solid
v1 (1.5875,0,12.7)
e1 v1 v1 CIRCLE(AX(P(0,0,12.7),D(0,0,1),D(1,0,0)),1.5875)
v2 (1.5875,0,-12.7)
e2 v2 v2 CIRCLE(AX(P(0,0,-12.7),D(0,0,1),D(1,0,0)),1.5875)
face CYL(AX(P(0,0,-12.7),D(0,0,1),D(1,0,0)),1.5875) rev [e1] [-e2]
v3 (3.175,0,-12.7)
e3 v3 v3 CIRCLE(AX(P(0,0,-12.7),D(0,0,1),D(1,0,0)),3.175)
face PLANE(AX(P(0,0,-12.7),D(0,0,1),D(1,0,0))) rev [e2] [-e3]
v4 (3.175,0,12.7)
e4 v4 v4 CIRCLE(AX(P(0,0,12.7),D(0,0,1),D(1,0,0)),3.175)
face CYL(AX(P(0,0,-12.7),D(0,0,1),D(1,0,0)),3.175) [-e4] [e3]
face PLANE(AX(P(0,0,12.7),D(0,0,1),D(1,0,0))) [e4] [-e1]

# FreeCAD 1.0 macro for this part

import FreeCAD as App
import Part
import Sketcher

V = App.Vector
Q = App.Units.Quantity

doc = App.newDocument("Part")
body = doc.addObject("PartDesign::Body", "Body")

# Sketch on XY plane
sketch1 = body.newObject("Sketcher::SketchObject", "Sketch")
sketch1.AttachmentSupport = (doc.getObject("XY_Plane"), [""])
sketch1.MapMode = "FlatFace"
sketch1.addGeometry(Part.Circle(V(0, 0, 0), V(0, 0, 1), 3.2), False)
sketch1.addConstraint([
    Sketcher.Constraint("Coincident", 0, 3, -1, 1),
    Sketcher.Constraint("Diameter", 0, Q("0.25 in")),
])
pad1 = body.newObject("PartDesign::Pad", "Pad")
pad1.Profile = sketch1
pad1.Type = "TwoLengths"
pad1.Length = Q("0.5 in")
pad1.Length2 = Q("0.5 in")

# Sketch on XY plane
sketch2 = body.newObject("Sketcher::SketchObject", "Sketch001")
sketch2.AttachmentSupport = (doc.getObject("XY_Plane"), [""])
sketch2.MapMode = "FlatFace"
sketch2.AttachmentOffset = App.Placement(V(0, 0, 0.5 * 25.4), App.Rotation())
sketch2.addGeometry(Part.Circle(V(0, 0, 0), V(0, 0, 1), 1.6), False)
sketch2.addConstraint([
    Sketcher.Constraint("Coincident", 0, 3, -1, 1),
    Sketcher.Constraint("Diameter", 0, Q("0.125 in")),
])
pocket1 = body.newObject("PartDesign::Pocket", "Pocket")
pocket1.Profile = sketch2
pocket1.Type = "ThroughAll"

doc.recompute()
